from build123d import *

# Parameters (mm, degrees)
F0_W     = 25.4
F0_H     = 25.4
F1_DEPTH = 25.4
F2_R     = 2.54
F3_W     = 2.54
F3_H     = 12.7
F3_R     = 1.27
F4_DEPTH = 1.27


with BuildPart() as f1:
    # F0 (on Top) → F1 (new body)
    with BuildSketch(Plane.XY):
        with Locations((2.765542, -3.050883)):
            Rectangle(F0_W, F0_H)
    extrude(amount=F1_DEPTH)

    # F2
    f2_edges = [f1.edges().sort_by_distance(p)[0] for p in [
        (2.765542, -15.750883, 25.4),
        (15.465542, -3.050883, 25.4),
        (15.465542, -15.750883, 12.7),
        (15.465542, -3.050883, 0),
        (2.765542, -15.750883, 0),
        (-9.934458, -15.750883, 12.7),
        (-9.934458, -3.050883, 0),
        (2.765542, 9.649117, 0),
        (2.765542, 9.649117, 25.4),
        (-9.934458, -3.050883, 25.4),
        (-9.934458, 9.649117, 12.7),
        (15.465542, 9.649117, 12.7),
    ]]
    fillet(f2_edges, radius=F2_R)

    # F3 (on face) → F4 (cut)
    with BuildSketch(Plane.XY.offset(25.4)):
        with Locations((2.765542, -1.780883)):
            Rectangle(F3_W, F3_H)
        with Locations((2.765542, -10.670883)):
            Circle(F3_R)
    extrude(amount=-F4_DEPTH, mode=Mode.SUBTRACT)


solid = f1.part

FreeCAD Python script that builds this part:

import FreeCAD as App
import Part
import Sketcher

V = App.Vector
Q = App.Units.Quantity

doc = App.newDocument("Part")
body = doc.addObject("PartDesign::Body", "Body")

# Sketch on XY plane
sketch1 = body.newObject("Sketcher::SketchObject", "Sketch")
sketch1.AttachmentSupport = (doc.getObject("XY_Plane"), [""])
sketch1.MapMode = "FlatFace"
sketch1.addGeometry([
    Part.LineSegment(V(-10, 10, 0), V(-10, -16, 0)),
    Part.LineSegment(V(-10, -16, 0), V(15, -16, 0)),
    Part.LineSegment(V(15, -16, 0), V(15, 10, 0)),
    Part.LineSegment(V(15, 10, 0), V(-10, 10, 0)),
], False)
sketch1.addConstraint([
    Sketcher.Constraint("Coincident", 0, 2, 1, 1),
    Sketcher.Constraint("Coincident", 1, 2, 2, 1),
    Sketcher.Constraint("Coincident", 2, 2, 3, 1),
    Sketcher.Constraint("Coincident", 3, 2, 0, 1),
    Sketcher.Constraint("Vertical", 0),
    Sketcher.Constraint("Horizontal", 1),
    Sketcher.Constraint("Vertical", 2),
    Sketcher.Constraint("Horizontal", 3),
    Sketcher.Constraint("Equal", 3, 0),
    Sketcher.Constraint("DistanceX", 1, 1, 1, 2, Q("1 in")),
    Sketcher.Constraint("DistanceX", -1, 1, 1, 2, 15.465542),
    Sketcher.Constraint("DistanceY", 0, 2, -1, 1, 15.750883),
])
pad1 = body.newObject("PartDesign::Pad", "Pad")
pad1.Profile = sketch1
pad1.Length = Q("1 in")
doc.recompute()

fillet = body.newObject("PartDesign::Fillet", "Fillet")
fillet.Base = (pad1, ["Edge1"])
fillet.UseAllEdges = True
fillet.Radius = Q("0.1 in")

# Sketch on XY plane
sketch2 = body.newObject("Sketcher::SketchObject", "Sketch001")
sketch2.AttachmentSupport = (doc.getObject("XY_Plane"), [""])
sketch2.MapMode = "FlatFace"
sketch2.AttachmentOffset = App.Placement(V(0, 0, 1 * 25.4), App.Rotation())
sketch2.addGeometry([
    Part.LineSegment(V(1.5, 4.6, 0), V(1.5, -8.1, 0)),  # 0
    Part.LineSegment(V(1.5, -8.1, 0), V(4, -8.1, 0)),  # 1
    Part.LineSegment(V(4, -8.1, 0), V(4, 4.6, 0)),  # 2
    Part.LineSegment(V(4, 4.6, 0), V(1.5, 4.6, 0)),  # 3
    Part.Circle(V(2.8, -10.7, 0), V(0, 0, 1), 1.3),  # 4
], False)
sketch2.addConstraint([
    Sketcher.Constraint("Coincident", 0, 2, 1, 1),
    Sketcher.Constraint("Coincident", 1, 2, 2, 1),
    Sketcher.Constraint("Coincident", 2, 2, 3, 1),
    Sketcher.Constraint("Coincident", 3, 2, 0, 1),
    Sketcher.Constraint("Vertical", 0),
    Sketcher.Constraint("Horizontal", 1),
    Sketcher.Constraint("Vertical", 2),
    Sketcher.Constraint("Horizontal", 3),
    Sketcher.Constraint("Diameter", 4, Q("0.1 in")),
    Sketcher.Constraint("DistanceX", 1, 1, 1, 2, Q("0.1 in")),
    Sketcher.Constraint("DistanceY", 0, 2, 0, 1, Q("0.5 in")),
    Sketcher.Constraint("DistanceY", 4, 3, 0, 2, Q("0.1 in")),
    Sketcher.Constraint("DistanceX", 0, 2, 4, 3, Q("0.05 in")),
    Sketcher.Constraint("DistanceX", -1, 1, 4, 3, 2.765542),
    Sketcher.Constraint("DistanceY", 4, 3, -1, 1, 10.670883),
])
pocket1 = body.newObject("PartDesign::Pocket", "Pocket")
pocket1.Profile = sketch2
pocket1.Length = Q("0.05 in")

doc.recompute()
